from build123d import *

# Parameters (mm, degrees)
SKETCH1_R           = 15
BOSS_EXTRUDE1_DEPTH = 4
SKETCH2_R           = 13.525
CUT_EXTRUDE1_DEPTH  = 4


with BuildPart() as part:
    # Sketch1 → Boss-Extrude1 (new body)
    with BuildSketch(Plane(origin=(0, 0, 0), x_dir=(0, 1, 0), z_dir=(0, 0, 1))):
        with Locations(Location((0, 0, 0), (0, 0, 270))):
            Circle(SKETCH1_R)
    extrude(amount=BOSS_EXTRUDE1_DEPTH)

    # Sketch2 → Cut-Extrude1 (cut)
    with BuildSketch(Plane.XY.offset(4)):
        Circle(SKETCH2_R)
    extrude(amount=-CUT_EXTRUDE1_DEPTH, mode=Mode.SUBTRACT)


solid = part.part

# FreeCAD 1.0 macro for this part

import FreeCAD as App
import Part
import Sketcher

V = App.Vector
Q = App.Units.Quantity

doc = App.newDocument("Part")
params = doc.addObject("Spreadsheet::Sheet", "Params")
for row, (alias, value) in enumerate([
    ("sketch1_diameter", "30 mm"),
    ("pad1_length", "4 mm"),
    ("sketch2_diameter", "27.05 mm"),
    ("pocket1_length", "4 mm"),
], start=1):
    params.set(f"A{row}", alias)
    params.set(f"B{row}", "=" + value)
    params.setAlias(f"B{row}", alias)

body = doc.addObject("PartDesign::Body", "Body")

# Sketch on XY plane
sketch1 = doc.addObject("Sketcher::SketchObject", "Sketch")
body.addObject(sketch1)
sketch1.AttachmentSupport = (doc.XY_Plane, [""])
sketch1.MapMode = "FlatFace"
sketch1.addGeometry(Part.Circle(V(0, 0, 0), V(0, 0, 1), 15), False)
sketch1.addConstraint([
    Sketcher.Constraint("Coincident", 0, 3, -1, 1),
    Sketcher.Constraint("Diameter", 0, Q("30 mm")),
])
sketch1.setExpression("Constraints[1]", "Params.sketch1_diameter")
pad1 = doc.addObject("PartDesign::Pad", "Pad")
body.addObject(pad1)
pad1.Profile = sketch1
pad1.setExpression("Length", "Params.pad1_length")

# Sketch on XY plane
sketch2 = doc.addObject("Sketcher::SketchObject", "Sketch001")
body.addObject(sketch2)
sketch2.AttachmentSupport = (doc.XY_Plane, [""])
sketch2.MapMode = "FlatFace"
sketch2.AttachmentOffset = App.Placement(V(0, 0, 4), App.Rotation())
sketch2.addGeometry(Part.Circle(V(0, 0, 0), V(0, 0, 1), 13.525), False)
sketch2.addConstraint([
    Sketcher.Constraint("Coincident", 0, 3, -1, 1),
    Sketcher.Constraint("Diameter", 0, Q("27.05 mm")),
])
sketch2.setExpression("Constraints[1]", "Params.sketch2_diameter")
pocket1 = doc.addObject("PartDesign::Pocket", "Pocket")
body.addObject(pocket1)
pocket1.Profile = sketch2
pocket1.setExpression("Length", "Params.pocket1_length")

doc.recompute()
